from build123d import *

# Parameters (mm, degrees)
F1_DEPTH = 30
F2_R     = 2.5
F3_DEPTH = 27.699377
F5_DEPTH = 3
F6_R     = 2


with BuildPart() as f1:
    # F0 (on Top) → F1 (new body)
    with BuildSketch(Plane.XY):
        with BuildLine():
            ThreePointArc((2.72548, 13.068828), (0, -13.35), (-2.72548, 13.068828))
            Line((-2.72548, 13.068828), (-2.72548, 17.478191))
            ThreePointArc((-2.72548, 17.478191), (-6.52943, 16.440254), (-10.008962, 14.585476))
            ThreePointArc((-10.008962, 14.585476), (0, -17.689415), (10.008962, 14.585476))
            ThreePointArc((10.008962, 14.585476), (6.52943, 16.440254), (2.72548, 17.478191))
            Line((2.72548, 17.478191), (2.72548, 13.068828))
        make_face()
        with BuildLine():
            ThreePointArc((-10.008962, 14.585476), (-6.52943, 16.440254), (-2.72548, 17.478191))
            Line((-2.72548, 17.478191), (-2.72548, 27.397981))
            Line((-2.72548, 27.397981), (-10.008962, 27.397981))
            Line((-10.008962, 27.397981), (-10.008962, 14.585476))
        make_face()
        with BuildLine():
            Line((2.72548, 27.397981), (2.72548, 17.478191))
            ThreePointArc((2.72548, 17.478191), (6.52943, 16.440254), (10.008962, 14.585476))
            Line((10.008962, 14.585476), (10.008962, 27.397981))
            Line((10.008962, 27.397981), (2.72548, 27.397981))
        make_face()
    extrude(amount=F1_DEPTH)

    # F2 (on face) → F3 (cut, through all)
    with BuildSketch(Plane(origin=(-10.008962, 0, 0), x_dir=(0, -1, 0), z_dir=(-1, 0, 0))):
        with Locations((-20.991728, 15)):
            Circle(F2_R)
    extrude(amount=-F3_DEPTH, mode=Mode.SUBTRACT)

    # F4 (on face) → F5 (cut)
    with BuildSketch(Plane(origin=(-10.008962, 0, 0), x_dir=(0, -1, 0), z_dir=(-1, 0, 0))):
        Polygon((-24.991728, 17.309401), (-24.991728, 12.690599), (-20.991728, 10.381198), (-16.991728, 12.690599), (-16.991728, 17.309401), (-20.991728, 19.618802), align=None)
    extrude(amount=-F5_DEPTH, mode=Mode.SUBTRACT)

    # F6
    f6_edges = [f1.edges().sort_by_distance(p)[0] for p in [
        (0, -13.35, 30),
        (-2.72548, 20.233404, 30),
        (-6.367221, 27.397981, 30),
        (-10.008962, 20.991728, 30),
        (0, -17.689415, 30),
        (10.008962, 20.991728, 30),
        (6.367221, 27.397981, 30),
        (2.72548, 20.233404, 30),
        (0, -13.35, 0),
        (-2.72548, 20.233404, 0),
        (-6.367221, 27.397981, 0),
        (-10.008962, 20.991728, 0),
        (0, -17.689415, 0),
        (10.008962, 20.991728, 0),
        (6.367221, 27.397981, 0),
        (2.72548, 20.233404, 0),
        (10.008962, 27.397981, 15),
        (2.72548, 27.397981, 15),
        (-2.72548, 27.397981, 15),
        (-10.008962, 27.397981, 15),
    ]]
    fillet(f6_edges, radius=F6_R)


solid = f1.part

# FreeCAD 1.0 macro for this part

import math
import FreeCAD as App
import Part
import Sketcher
Q = App.Units.Quantity


def edges_at(feature, points):
    """Names of the edges that pass closest to the given points."""
    edges = feature.Shape.Edges
    near = lambda p: min(range(len(edges)), key=lambda i: edges[i].distToShape(Part.Vertex(*p))[0])
    return sorted({f"Edge{near(p) + 1}" for p in points})

doc = App.newDocument("Part")
body = doc.addObject("PartDesign::Body", "Body")

sketch1 = doc.addObject("Sketcher::SketchObject", "Sketch")
body.addObject(sketch1)
sketch1.AttachmentSupport = (doc.XY_Plane, [""])
sketch1.MapMode = "FlatFace"
sketch1.addGeometry(Part.ArcOfCircle(Part.Circle(App.Vector(0, 0, 0), App.Vector(0, 0, 1), 13), math.radians(102), math.radians(438)), False)
sketch1.addGeometry(Part.LineSegment(App.Vector(-3, 13, 0), App.Vector(-3, 27, 0)), False)
sketch1.addGeometry(Part.LineSegment(App.Vector(-3, 27, 0), App.Vector(-10, 27, 0)), False)
sketch1.addGeometry(Part.LineSegment(App.Vector(-10, 27, 0), App.Vector(-10, 15, 0)), False)
sketch1.addGeometry(Part.ArcOfCircle(Part.Circle(App.Vector(0, 0, 0), App.Vector(0, 0, 1), 18), math.radians(124), math.radians(416)), False)
sketch1.addGeometry(Part.LineSegment(App.Vector(10, 15, 0), App.Vector(10, 27, 0)), False)
sketch1.addGeometry(Part.LineSegment(App.Vector(10, 27, 0), App.Vector(3, 27, 0)), False)
sketch1.addGeometry(Part.LineSegment(App.Vector(3, 27, 0), App.Vector(3, 13, 0)), False)
sketch1.addConstraint(Sketcher.Constraint("Coincident", 0, 1, 1, 1))
sketch1.addConstraint(Sketcher.Constraint("Coincident", 1, 2, 2, 1))
sketch1.addConstraint(Sketcher.Constraint("Coincident", 2, 2, 3, 1))
sketch1.addConstraint(Sketcher.Constraint("Coincident", 3, 2, 4, 1))
sketch1.addConstraint(Sketcher.Constraint("Coincident", 4, 2, 5, 1))
sketch1.addConstraint(Sketcher.Constraint("Coincident", 5, 2, 6, 1))
sketch1.addConstraint(Sketcher.Constraint("Coincident", 6, 2, 7, 1))
sketch1.addConstraint(Sketcher.Constraint("Coincident", 7, 2, 0, 2))
sketch1.addConstraint(Sketcher.Constraint("Vertical", 1))
sketch1.addConstraint(Sketcher.Constraint("Horizontal", 2))
sketch1.addConstraint(Sketcher.Constraint("Vertical", 3))
sketch1.addConstraint(Sketcher.Constraint("Vertical", 5))
sketch1.addConstraint(Sketcher.Constraint("Horizontal", 6))
sketch1.addConstraint(Sketcher.Constraint("Vertical", 7))
sketch1.addConstraint(Sketcher.Constraint("Coincident", 0, 3, -1, 1))
sketch1.addConstraint(Sketcher.Constraint("Coincident", 4, 3, -1, 1))
sketch1.addConstraint(Sketcher.Constraint("Symmetric", 2, 2, 5, 2, -2))
sketch1.addConstraint(Sketcher.Constraint("Horizontal", 0, 1, 7, 2))
sketch1.addConstraint(Sketcher.Constraint("Radius", 0, 13.35))
sketch1.addConstraint(Sketcher.Constraint("Radius", 4, 17.689415))
sketch1.addConstraint(Sketcher.Constraint("DistanceX", 2, 2, 2, 1, 7.283482))
sketch1.addConstraint(Sketcher.Constraint("DistanceY", 1, 1, 1, 2, 14.329153))
sketch1.addConstraint(Sketcher.Constraint("DistanceY", 3, 2, 3, 1, 12.812505))
pad1 = doc.addObject("PartDesign::Pad", "Pad")
body.addObject(pad1)
pad1.Profile = sketch1
pad1.Length = 30

sketch2 = doc.addObject("Sketcher::SketchObject", "Sketch001")
body.addObject(sketch2)
sketch2.AttachmentSupport = (doc.YZ_Plane, [""])
sketch2.MapMode = "FlatFace"
sketch2.AttachmentOffset = App.Placement(App.Vector(0, 0, -10.008962), App.Rotation())
sketch2.addGeometry(Part.Circle(App.Vector(21, 15, 0), App.Vector(0, 0, 1), 2.5), False)
sketch2.addConstraint(Sketcher.Constraint("Diameter", 0, 5.0))
sketch2.addConstraint(Sketcher.Constraint("DistanceY", -1, 1, 0, 3, 15.0))
sketch2.addConstraint(Sketcher.Constraint("DistanceX", -1, 1, 0, 3, 20.991728))
pocket1 = doc.addObject("PartDesign::Pocket", "Pocket")
body.addObject(pocket1)
pocket1.Profile = sketch2
pocket1.Type = "ThroughAll"
pocket1.Reversed = True

sketch3 = doc.addObject("Sketcher::SketchObject", "Sketch002")
body.addObject(sketch3)
sketch3.AttachmentSupport = (doc.YZ_Plane, [""])
sketch3.MapMode = "FlatFace"
sketch3.AttachmentOffset = App.Placement(App.Vector(0, 0, -10.008962), App.Rotation())
sketch3.addGeometry(Part.LineSegment(App.Vector(25, 17.3, 0), App.Vector(25, 12.7, 0)), False)
sketch3.addGeometry(Part.LineSegment(App.Vector(25, 12.7, 0), App.Vector(21, 10.4, 0)), False)
sketch3.addGeometry(Part.LineSegment(App.Vector(21, 10.4, 0), App.Vector(17, 12.7, 0)), False)
sketch3.addGeometry(Part.LineSegment(App.Vector(17, 12.7, 0), App.Vector(17, 17.3, 0)), False)
sketch3.addGeometry(Part.LineSegment(App.Vector(17, 17.3, 0), App.Vector(21, 19.6, 0)), False)
sketch3.addGeometry(Part.LineSegment(App.Vector(21, 19.6, 0), App.Vector(25, 17.3, 0)), False)
sketch3.addConstraint(Sketcher.Constraint("Coincident", 0, 2, 1, 1))
sketch3.addConstraint(Sketcher.Constraint("Coincident", 1, 2, 2, 1))
sketch3.addConstraint(Sketcher.Constraint("Coincident", 2, 2, 3, 1))
sketch3.addConstraint(Sketcher.Constraint("Coincident", 3, 2, 4, 1))
sketch3.addConstraint(Sketcher.Constraint("Coincident", 4, 2, 5, 1))
sketch3.addConstraint(Sketcher.Constraint("Coincident", 5, 2, 0, 1))
sketch3.addConstraint(Sketcher.Constraint("Vertical", 0))
sketch3.addConstraint(Sketcher.Constraint("Vertical", 3))
sketch3.addConstraint(Sketcher.Constraint("Parallel", 1, 4))
sketch3.addConstraint(Sketcher.Constraint("Parallel", 2, 5))
sketch3.addConstraint(Sketcher.Constraint("Horizontal", 0, 2, 2, 2))
sketch3.addConstraint(Sketcher.Constraint("Horizontal", 3, 2, 5, 2))
sketch3.addConstraint(Sketcher.Constraint("Vertical", 1, 2, 4, 2))
sketch3.addConstraint(Sketcher.Constraint("Angle", 1, Q("-150.000001 deg")))
sketch3.addConstraint(Sketcher.Constraint("DistanceX", 1, 2, 0, 2, 4.0))
sketch3.addConstraint(Sketcher.Constraint("DistanceY", -1, 1, 0, 2, 12.690599))
sketch3.addConstraint(Sketcher.Constraint("DistanceY", -1, 1, 3, 2, 17.309401))
sketch3.addConstraint(Sketcher.Constraint("DistanceX", -1, 1, 0, 2, 24.991728))
pocket2 = doc.addObject("PartDesign::Pocket", "Pocket001")
body.addObject(pocket2)
pocket2.Profile = sketch3
pocket2.Length = 3
pocket2.Reversed = True
doc.recompute()

fillet = doc.addObject("PartDesign::Fillet", "Fillet")
body.addObject(fillet)
fillet.Base = (pocket2, edges_at(pocket2, [
    (0, -13.35, 30),
    (-2.725, 20.233, 30),
    (-6.367, 27.398, 30),
    (-10.009, 20.992, 30),
    (0, -17.689, 30),
    (10.009, 20.992, 30),
    (6.367, 27.398, 30),
    (2.725, 20.233, 30),
    (0, -13.35, 0),
    (-2.725, 20.233, 0),
    (-6.367, 27.398, 0),
    (-10.009, 20.992, 0),
    (0, -17.689, 0),
    (10.009, 20.992, 0),
    (6.367, 27.398, 0),
    (2.725, 20.233, 0),
    (10.009, 27.398, 15),
    (2.725, 27.398, 15),
    (-2.725, 27.398, 15),
    (-10.009, 27.398, 15),
]))
fillet.Radius = 2

doc.recompute()
